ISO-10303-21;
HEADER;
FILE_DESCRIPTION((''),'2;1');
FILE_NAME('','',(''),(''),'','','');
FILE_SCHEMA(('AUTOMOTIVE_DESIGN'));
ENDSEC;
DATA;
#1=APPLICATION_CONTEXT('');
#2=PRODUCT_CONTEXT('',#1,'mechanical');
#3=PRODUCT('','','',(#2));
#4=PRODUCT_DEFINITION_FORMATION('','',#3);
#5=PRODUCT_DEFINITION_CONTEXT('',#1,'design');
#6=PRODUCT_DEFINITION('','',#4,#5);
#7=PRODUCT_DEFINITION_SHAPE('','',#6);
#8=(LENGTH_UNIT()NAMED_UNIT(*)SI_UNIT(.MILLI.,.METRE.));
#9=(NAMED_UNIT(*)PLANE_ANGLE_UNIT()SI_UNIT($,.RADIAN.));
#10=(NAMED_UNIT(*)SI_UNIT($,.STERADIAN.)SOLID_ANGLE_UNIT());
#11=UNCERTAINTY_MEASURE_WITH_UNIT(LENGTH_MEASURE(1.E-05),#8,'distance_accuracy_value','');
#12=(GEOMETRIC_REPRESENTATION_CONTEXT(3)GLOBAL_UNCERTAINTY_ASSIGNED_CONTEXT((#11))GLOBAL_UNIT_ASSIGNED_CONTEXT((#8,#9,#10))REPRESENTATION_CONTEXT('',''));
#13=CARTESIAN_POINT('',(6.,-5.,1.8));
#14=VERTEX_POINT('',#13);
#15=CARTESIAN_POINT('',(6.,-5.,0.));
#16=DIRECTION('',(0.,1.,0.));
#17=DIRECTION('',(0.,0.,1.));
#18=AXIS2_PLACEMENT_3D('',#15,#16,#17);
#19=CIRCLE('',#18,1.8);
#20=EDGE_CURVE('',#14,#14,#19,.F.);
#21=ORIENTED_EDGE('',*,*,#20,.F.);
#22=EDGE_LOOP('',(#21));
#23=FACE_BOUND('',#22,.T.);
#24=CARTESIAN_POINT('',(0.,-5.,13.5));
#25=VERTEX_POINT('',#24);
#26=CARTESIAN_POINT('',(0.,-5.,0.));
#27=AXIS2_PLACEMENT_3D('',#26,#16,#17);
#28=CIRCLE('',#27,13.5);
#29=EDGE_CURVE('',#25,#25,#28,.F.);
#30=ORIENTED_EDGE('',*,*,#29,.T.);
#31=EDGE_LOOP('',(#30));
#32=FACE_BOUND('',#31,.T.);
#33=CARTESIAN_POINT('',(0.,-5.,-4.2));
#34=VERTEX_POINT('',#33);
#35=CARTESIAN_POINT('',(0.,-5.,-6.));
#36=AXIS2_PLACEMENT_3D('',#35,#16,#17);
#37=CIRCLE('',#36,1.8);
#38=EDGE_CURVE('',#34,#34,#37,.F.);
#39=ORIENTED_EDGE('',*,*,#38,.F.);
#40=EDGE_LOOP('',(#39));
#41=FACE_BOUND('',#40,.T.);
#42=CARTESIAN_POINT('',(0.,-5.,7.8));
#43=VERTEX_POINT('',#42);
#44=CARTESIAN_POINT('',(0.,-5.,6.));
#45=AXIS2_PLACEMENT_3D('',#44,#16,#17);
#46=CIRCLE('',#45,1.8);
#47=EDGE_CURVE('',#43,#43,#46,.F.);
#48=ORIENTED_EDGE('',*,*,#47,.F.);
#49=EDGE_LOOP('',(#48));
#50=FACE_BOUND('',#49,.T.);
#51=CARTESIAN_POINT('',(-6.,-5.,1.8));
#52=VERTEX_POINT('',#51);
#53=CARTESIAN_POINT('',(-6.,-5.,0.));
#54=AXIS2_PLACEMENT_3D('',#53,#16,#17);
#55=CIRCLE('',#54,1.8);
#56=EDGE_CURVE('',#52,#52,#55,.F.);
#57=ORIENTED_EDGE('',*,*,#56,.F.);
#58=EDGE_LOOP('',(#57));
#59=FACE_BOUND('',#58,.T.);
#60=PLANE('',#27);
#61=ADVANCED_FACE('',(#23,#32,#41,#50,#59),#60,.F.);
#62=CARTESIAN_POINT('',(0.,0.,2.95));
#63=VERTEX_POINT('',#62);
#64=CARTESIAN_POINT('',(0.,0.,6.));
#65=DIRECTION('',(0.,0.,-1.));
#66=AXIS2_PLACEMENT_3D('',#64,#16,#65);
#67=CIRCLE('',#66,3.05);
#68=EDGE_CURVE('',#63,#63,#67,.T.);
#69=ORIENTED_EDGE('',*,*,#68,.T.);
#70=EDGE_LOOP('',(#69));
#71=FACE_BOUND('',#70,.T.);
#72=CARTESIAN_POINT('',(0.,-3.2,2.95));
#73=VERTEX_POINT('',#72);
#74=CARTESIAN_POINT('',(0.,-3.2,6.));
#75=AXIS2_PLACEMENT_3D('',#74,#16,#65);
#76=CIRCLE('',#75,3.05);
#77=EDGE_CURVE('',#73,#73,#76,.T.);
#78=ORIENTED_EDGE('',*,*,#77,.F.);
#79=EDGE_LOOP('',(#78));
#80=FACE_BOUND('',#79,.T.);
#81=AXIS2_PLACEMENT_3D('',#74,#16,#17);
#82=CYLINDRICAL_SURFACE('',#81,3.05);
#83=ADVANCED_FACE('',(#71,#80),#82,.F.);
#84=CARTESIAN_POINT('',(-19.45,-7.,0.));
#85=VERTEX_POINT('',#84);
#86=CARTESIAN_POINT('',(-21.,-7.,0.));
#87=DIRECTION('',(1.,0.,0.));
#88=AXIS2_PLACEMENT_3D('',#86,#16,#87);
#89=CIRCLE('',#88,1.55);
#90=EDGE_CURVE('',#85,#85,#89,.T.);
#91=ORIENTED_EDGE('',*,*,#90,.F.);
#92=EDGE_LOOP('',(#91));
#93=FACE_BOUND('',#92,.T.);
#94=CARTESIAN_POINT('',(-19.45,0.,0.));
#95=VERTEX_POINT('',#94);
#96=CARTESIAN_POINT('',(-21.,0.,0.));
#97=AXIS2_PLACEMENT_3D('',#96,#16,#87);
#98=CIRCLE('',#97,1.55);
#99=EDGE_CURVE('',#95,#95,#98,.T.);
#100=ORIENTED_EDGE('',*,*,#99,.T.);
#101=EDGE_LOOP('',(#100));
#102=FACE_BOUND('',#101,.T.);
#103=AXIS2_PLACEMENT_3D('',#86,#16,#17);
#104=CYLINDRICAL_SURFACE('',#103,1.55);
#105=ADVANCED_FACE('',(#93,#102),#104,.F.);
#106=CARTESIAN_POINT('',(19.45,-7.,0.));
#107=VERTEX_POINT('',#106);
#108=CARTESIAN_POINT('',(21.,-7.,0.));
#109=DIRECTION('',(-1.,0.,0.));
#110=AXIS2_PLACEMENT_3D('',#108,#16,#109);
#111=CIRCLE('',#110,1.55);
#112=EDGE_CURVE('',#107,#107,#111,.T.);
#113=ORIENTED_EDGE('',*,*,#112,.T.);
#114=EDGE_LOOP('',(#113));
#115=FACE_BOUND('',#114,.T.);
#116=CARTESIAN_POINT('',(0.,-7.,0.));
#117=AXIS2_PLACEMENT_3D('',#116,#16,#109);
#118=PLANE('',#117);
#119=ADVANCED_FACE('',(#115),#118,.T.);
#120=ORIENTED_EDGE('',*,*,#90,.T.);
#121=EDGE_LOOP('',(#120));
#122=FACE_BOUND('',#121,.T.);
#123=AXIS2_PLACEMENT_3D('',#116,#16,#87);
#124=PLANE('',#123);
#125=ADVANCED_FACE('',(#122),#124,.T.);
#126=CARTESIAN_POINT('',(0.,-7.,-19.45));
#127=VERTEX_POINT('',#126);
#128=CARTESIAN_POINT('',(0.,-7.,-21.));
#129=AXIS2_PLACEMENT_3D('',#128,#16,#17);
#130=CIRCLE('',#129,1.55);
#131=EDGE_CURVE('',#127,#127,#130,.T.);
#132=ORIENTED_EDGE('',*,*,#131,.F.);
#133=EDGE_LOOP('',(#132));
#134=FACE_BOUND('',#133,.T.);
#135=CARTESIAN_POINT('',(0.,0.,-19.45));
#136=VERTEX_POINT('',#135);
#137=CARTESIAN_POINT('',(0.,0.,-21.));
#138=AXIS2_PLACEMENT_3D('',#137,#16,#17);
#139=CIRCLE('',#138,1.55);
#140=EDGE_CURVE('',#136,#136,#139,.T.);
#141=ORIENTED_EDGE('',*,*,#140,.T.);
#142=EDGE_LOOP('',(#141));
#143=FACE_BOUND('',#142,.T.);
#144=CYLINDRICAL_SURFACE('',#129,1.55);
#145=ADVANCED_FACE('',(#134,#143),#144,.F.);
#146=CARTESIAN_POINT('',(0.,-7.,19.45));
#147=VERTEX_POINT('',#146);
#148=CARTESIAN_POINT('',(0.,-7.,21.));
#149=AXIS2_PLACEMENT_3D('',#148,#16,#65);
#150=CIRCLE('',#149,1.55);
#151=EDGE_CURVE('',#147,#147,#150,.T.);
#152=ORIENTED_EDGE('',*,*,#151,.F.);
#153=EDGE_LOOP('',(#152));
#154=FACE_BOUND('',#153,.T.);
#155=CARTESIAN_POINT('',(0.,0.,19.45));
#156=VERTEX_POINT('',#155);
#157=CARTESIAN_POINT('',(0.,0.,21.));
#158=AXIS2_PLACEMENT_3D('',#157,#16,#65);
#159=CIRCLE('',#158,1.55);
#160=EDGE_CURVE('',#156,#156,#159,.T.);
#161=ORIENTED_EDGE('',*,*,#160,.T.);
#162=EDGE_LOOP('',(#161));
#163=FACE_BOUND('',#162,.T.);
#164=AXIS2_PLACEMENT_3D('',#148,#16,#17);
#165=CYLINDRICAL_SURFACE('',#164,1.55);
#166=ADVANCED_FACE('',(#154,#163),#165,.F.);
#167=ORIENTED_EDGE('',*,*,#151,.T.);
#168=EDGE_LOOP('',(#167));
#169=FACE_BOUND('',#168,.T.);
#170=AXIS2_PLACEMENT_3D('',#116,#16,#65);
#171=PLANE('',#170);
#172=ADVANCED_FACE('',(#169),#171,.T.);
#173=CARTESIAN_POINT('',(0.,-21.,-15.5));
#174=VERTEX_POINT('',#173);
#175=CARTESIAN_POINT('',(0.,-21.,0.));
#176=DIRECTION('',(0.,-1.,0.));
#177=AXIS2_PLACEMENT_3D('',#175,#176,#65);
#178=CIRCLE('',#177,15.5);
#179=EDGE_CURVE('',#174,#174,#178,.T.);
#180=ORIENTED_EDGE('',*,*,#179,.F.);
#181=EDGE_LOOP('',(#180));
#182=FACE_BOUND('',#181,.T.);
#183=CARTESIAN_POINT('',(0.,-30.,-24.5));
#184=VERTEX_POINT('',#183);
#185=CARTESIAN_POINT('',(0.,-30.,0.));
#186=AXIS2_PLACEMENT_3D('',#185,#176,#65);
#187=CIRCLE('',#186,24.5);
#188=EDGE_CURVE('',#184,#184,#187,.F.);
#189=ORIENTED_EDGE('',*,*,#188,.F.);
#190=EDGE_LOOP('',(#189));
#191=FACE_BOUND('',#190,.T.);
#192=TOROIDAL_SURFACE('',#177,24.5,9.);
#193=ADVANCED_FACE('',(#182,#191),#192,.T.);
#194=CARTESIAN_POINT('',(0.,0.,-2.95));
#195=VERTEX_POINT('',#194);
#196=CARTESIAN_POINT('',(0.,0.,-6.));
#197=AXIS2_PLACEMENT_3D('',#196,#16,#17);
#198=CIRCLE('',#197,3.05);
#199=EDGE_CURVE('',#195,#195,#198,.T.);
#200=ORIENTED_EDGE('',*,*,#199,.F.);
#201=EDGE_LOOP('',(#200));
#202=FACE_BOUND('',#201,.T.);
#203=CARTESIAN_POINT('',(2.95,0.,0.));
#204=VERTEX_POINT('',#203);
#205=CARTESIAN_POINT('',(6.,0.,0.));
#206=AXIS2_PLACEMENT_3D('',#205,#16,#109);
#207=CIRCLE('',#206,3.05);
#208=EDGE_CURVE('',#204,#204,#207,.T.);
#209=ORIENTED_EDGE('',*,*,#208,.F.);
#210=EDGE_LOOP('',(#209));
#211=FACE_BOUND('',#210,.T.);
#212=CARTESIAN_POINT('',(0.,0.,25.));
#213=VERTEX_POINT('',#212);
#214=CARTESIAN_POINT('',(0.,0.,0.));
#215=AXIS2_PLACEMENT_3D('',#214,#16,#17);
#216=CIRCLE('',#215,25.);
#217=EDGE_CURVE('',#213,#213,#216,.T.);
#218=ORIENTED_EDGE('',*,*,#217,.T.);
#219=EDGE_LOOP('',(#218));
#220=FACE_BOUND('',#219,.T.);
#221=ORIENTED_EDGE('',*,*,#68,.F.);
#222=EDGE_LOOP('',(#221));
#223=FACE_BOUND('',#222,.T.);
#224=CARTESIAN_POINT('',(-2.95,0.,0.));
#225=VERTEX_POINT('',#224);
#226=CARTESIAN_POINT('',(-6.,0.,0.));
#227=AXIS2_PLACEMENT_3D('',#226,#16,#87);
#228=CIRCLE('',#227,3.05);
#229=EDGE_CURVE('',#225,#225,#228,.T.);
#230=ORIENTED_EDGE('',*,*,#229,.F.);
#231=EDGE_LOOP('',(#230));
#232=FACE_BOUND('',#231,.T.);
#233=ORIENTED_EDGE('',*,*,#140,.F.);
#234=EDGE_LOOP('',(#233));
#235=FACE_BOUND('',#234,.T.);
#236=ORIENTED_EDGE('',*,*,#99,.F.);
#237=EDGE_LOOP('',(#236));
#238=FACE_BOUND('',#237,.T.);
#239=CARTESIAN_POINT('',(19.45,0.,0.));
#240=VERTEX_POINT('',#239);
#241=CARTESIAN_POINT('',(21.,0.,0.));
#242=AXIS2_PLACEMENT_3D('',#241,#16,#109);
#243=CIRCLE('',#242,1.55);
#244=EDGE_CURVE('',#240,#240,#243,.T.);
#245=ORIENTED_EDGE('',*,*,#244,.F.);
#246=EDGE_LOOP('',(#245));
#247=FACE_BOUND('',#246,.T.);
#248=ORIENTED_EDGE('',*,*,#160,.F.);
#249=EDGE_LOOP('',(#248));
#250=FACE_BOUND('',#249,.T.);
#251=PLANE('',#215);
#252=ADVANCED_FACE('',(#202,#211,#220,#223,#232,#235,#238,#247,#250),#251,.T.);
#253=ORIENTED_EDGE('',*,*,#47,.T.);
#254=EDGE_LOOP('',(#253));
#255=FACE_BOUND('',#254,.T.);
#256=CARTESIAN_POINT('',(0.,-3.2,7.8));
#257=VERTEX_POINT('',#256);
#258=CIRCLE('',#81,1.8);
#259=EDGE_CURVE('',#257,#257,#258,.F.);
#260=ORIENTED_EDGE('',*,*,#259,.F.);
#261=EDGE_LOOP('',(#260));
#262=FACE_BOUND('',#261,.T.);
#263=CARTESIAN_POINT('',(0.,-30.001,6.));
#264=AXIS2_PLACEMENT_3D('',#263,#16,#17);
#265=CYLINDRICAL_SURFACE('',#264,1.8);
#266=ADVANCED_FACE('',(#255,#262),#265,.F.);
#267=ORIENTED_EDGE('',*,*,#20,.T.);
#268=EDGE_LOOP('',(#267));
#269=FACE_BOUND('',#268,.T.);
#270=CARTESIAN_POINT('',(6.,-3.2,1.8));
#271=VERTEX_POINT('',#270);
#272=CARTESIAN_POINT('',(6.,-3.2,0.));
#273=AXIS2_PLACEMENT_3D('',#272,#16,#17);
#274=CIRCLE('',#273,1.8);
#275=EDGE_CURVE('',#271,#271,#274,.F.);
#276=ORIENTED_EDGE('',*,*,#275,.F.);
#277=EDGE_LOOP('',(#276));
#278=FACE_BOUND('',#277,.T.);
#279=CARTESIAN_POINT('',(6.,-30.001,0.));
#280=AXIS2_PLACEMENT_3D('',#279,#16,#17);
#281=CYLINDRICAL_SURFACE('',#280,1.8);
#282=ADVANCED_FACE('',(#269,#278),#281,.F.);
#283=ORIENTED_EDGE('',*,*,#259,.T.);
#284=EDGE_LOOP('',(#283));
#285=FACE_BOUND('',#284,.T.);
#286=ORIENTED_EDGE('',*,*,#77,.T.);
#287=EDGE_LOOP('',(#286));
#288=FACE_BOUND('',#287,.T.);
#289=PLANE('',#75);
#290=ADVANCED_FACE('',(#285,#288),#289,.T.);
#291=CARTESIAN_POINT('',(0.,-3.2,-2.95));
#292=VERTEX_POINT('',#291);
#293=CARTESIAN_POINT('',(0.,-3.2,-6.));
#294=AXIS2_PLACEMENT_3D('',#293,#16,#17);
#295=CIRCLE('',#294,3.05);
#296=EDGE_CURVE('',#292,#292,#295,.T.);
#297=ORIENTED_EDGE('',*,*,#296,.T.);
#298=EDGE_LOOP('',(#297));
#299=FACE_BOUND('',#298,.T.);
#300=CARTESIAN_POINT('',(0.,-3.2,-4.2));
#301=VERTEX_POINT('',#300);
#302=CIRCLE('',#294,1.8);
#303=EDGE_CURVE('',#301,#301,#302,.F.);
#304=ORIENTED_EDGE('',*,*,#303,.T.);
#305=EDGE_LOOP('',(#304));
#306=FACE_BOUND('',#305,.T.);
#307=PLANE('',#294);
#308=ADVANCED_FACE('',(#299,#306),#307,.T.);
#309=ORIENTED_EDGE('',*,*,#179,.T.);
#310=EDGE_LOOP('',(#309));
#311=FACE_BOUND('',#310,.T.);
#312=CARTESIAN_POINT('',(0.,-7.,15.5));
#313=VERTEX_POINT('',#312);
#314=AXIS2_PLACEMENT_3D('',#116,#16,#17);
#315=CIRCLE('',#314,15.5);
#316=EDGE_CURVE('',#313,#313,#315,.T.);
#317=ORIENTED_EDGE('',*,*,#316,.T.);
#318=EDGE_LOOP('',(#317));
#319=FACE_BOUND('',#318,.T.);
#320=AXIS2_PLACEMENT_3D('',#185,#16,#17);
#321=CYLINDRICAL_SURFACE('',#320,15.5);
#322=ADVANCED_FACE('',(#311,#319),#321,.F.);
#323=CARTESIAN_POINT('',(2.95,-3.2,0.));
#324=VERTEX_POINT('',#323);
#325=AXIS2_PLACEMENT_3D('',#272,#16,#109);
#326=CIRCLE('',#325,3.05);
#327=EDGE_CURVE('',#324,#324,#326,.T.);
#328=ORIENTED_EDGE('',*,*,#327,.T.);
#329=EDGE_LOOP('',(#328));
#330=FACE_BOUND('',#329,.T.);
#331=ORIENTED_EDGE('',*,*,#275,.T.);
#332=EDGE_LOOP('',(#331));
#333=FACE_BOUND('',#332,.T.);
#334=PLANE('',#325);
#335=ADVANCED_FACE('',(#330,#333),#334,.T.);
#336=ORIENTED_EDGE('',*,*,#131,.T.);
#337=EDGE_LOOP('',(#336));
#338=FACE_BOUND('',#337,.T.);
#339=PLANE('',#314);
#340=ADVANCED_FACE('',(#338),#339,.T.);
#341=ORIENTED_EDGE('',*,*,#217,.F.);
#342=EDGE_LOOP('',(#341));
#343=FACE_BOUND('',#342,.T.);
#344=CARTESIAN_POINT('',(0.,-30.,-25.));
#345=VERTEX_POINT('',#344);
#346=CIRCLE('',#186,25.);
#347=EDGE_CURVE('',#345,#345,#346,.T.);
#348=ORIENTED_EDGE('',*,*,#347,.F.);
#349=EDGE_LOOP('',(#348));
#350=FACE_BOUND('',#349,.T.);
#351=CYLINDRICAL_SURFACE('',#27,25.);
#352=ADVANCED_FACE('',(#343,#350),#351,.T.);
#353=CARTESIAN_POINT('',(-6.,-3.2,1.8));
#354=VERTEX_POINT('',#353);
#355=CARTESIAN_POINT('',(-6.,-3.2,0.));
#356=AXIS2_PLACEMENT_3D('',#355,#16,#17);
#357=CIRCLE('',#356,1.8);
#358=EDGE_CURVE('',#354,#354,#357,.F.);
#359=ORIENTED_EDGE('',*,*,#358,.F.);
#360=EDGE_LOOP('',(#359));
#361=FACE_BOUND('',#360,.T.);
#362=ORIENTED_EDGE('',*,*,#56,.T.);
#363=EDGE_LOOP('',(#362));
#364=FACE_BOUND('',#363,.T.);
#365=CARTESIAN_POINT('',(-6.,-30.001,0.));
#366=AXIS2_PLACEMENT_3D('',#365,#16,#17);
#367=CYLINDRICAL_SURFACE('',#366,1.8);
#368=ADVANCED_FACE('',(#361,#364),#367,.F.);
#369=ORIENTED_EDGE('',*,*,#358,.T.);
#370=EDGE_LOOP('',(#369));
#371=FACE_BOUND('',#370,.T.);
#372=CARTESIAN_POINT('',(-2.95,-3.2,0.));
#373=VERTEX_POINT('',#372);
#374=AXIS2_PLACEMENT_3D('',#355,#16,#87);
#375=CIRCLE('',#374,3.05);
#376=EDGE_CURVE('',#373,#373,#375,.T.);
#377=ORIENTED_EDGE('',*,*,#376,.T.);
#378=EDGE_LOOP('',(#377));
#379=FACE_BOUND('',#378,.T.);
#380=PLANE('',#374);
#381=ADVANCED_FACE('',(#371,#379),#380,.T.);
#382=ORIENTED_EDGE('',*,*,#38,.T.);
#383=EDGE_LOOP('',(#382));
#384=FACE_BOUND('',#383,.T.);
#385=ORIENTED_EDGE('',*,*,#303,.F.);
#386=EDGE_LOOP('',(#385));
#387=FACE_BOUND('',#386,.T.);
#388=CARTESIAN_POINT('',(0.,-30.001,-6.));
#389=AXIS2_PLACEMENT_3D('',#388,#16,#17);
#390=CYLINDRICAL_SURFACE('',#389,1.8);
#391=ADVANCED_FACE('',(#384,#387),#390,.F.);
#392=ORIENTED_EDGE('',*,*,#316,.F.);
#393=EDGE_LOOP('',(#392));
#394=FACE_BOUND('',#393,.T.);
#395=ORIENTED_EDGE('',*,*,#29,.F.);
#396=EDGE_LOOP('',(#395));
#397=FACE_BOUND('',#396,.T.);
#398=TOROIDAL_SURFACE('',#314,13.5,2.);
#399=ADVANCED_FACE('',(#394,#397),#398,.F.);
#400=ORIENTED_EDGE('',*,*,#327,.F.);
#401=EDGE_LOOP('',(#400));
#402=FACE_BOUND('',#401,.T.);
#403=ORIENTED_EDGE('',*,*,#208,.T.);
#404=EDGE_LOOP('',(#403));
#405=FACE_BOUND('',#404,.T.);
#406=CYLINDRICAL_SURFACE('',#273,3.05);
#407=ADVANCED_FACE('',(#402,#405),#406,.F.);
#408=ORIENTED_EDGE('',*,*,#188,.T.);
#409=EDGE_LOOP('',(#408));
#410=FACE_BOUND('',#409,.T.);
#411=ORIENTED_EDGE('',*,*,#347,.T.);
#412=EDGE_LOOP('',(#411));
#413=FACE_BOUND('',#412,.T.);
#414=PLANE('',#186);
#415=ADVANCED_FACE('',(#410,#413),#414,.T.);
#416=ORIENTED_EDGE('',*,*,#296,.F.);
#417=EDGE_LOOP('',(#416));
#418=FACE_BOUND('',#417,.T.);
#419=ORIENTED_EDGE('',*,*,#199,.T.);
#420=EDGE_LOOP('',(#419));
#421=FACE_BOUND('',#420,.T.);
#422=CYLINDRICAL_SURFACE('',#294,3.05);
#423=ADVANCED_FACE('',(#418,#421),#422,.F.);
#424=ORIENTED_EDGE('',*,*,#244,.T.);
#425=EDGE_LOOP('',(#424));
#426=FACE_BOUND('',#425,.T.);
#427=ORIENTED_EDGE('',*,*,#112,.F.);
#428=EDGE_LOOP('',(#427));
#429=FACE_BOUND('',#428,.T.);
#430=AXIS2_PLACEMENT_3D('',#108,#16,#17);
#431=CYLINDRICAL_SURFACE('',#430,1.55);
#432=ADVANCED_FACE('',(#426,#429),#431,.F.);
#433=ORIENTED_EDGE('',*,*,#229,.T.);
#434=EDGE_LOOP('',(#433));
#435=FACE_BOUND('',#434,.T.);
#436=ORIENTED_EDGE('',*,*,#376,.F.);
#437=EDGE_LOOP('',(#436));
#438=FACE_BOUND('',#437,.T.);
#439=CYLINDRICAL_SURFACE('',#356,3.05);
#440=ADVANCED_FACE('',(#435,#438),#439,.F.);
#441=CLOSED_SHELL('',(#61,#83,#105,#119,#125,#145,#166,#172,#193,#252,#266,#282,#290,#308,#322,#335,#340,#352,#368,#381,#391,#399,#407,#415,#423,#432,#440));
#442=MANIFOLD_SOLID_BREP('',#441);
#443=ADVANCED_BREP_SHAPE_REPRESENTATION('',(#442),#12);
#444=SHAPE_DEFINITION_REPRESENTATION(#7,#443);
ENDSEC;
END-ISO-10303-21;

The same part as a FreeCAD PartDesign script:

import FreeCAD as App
import Part
import Sketcher
from FreeCAD import Vector


def edges_at(feature, points):
    """Names of the edges that pass closest to the given points."""
    edges = feature.Shape.Edges
    near = lambda p: min(range(len(edges)), key=lambda i: edges[i].distToShape(Part.Vertex(*p))[0])
    return sorted({f"Edge{near(p) + 1}" for p in points})

doc = App.newDocument("Part")
body = doc.addObject("PartDesign::Body", "Body")

# Sketch on XZ plane
sketch1 = body.newObject("Sketcher::SketchObject", "Sketch")
sketch1.AttachmentSupport = (doc.getObject("XZ_Plane"), [""])
sketch1.MapMode = "FlatFace"
sketch1.addGeometry(Part.Circle(Vector(0, 0, 0), Vector(0, 0, 1), 25), False)
sketch1.addConstraint([
    Sketcher.Constraint("Coincident", 0, 3, -1, 1),
    Sketcher.Constraint("Diameter", 0, 50.0),
])
pad1 = body.newObject("PartDesign::Pad", "Pad")
pad1.Profile = sketch1
pad1.Length = 5

# Sketch on XZ plane
sketch2 = body.newObject("Sketcher::SketchObject", "Sketch001")
sketch2.AttachmentSupport = (doc.getObject("XZ_Plane"), [""])
sketch2.MapMode = "FlatFace"
sketch2.AttachmentOffset = App.Placement(Vector(0, 0, 5), App.Rotation())
sketch2.addGeometry([
    Part.Circle(Vector(0, 0, 0), Vector(0, 0, 1), 25),
    Part.Circle(Vector(0, 0, 0), Vector(0, 0, 1), 15.5),
], False)
sketch2.addConstraint([
    Sketcher.Constraint("Coincident", 0, 3, -1, 1),
    Sketcher.Constraint("Coincident", 1, 3, -1, 1),
    Sketcher.Constraint("Diameter", 0, 50.0),
    Sketcher.Constraint("Diameter", 1, 31.0),
])
pad2 = body.newObject("PartDesign::Pad", "Pad001")
pad2.Profile = sketch2
pad2.Length = 25

# Sketch on XZ plane
sketch3 = body.newObject("Sketcher::SketchObject", "Sketch002")
sketch3.AttachmentSupport = (doc.getObject("XZ_Plane"), [""])
sketch3.MapMode = "FlatFace"
sketch3.addGeometry([
    Part.Circle(Vector(0, -6, 0), Vector(0, 0, 1), 3.05),
    Part.Circle(Vector(0, -6, 0), Vector(0, 0, 1), 1.8),
], False)
sketch3.addConstraint([
    Sketcher.Constraint("Coincident", 1, 3, 0, 3),
    Sketcher.Constraint("PointOnObject", 0, 3, -2),
    Sketcher.Constraint("Diameter", 0, 6.1),
    Sketcher.Constraint("Diameter", 1, 3.6),
    Sketcher.Constraint("DistanceY", 0, 3, -1, 1, 6.0),
])
pocket1 = body.newObject("PartDesign::Pocket", "Pocket")
pocket1.Profile = sketch3
pocket1.Length = 3.2
pocket1.Reversed = True

# Sketch on XZ plane
sketch4 = body.newObject("Sketcher::SketchObject", "Sketch003")
sketch4.AttachmentSupport = (doc.getObject("XZ_Plane"), [""])
sketch4.MapMode = "FlatFace"
sketch4.addGeometry(Part.Circle(Vector(0, -6, 0), Vector(0, 0, 1), 1.8), False)
sketch4.addConstraint([
    Sketcher.Constraint("PointOnObject", 0, 3, -2),
    Sketcher.Constraint("Diameter", 0, 3.6),
    Sketcher.Constraint("DistanceY", 0, 3, -1, 1, 6.0),
])
pocket2 = body.newObject("PartDesign::Pocket", "Pocket001")
pocket2.Profile = sketch4
pocket2.Length = 5
pocket2.Reversed = True

# Sketch on XZ plane
sketch5 = body.newObject("Sketcher::SketchObject", "Sketch004")
sketch5.AttachmentSupport = (doc.getObject("XZ_Plane"), [""])
sketch5.MapMode = "FlatFace"
sketch5.addGeometry(Part.Circle(Vector(0, -21, 0), Vector(0, 0, 1), 1.55), False)
sketch5.addConstraint([
    Sketcher.Constraint("PointOnObject", 0, 3, -2),
    Sketcher.Constraint("Diameter", 0, 3.1),
    Sketcher.Constraint("DistanceY", 0, 3, -1, 1, 21.0),
])
pocket3 = body.newObject("PartDesign::Pocket", "Pocket002")
pocket3.Profile = sketch5
pocket3.Length = 7
pocket3.Reversed = True
doc.recompute()

polarpattern = body.newObject("PartDesign::PolarPattern", "PolarPattern")
polarpattern.Originals = [pocket1, pocket2, pocket3]
polarpattern.Axis = (doc.getObject("Y_Axis"), [""])
polarpattern.Angle = 360
polarpattern.Occurrences = 4
body.Tip = polarpattern
doc.recompute()

fillet = body.newObject("PartDesign::Fillet", "Fillet")
fillet.Base = (polarpattern, edges_at(polarpattern, [(-15.5, -30, 0)]))
fillet.Radius = 9
doc.recompute()

fillet2 = body.newObject("PartDesign::Fillet", "Fillet001")
fillet2.Base = (fillet, edges_at(fillet, [(-15.5, -5, 0)]))
fillet2.Radius = 2

doc.recompute()
